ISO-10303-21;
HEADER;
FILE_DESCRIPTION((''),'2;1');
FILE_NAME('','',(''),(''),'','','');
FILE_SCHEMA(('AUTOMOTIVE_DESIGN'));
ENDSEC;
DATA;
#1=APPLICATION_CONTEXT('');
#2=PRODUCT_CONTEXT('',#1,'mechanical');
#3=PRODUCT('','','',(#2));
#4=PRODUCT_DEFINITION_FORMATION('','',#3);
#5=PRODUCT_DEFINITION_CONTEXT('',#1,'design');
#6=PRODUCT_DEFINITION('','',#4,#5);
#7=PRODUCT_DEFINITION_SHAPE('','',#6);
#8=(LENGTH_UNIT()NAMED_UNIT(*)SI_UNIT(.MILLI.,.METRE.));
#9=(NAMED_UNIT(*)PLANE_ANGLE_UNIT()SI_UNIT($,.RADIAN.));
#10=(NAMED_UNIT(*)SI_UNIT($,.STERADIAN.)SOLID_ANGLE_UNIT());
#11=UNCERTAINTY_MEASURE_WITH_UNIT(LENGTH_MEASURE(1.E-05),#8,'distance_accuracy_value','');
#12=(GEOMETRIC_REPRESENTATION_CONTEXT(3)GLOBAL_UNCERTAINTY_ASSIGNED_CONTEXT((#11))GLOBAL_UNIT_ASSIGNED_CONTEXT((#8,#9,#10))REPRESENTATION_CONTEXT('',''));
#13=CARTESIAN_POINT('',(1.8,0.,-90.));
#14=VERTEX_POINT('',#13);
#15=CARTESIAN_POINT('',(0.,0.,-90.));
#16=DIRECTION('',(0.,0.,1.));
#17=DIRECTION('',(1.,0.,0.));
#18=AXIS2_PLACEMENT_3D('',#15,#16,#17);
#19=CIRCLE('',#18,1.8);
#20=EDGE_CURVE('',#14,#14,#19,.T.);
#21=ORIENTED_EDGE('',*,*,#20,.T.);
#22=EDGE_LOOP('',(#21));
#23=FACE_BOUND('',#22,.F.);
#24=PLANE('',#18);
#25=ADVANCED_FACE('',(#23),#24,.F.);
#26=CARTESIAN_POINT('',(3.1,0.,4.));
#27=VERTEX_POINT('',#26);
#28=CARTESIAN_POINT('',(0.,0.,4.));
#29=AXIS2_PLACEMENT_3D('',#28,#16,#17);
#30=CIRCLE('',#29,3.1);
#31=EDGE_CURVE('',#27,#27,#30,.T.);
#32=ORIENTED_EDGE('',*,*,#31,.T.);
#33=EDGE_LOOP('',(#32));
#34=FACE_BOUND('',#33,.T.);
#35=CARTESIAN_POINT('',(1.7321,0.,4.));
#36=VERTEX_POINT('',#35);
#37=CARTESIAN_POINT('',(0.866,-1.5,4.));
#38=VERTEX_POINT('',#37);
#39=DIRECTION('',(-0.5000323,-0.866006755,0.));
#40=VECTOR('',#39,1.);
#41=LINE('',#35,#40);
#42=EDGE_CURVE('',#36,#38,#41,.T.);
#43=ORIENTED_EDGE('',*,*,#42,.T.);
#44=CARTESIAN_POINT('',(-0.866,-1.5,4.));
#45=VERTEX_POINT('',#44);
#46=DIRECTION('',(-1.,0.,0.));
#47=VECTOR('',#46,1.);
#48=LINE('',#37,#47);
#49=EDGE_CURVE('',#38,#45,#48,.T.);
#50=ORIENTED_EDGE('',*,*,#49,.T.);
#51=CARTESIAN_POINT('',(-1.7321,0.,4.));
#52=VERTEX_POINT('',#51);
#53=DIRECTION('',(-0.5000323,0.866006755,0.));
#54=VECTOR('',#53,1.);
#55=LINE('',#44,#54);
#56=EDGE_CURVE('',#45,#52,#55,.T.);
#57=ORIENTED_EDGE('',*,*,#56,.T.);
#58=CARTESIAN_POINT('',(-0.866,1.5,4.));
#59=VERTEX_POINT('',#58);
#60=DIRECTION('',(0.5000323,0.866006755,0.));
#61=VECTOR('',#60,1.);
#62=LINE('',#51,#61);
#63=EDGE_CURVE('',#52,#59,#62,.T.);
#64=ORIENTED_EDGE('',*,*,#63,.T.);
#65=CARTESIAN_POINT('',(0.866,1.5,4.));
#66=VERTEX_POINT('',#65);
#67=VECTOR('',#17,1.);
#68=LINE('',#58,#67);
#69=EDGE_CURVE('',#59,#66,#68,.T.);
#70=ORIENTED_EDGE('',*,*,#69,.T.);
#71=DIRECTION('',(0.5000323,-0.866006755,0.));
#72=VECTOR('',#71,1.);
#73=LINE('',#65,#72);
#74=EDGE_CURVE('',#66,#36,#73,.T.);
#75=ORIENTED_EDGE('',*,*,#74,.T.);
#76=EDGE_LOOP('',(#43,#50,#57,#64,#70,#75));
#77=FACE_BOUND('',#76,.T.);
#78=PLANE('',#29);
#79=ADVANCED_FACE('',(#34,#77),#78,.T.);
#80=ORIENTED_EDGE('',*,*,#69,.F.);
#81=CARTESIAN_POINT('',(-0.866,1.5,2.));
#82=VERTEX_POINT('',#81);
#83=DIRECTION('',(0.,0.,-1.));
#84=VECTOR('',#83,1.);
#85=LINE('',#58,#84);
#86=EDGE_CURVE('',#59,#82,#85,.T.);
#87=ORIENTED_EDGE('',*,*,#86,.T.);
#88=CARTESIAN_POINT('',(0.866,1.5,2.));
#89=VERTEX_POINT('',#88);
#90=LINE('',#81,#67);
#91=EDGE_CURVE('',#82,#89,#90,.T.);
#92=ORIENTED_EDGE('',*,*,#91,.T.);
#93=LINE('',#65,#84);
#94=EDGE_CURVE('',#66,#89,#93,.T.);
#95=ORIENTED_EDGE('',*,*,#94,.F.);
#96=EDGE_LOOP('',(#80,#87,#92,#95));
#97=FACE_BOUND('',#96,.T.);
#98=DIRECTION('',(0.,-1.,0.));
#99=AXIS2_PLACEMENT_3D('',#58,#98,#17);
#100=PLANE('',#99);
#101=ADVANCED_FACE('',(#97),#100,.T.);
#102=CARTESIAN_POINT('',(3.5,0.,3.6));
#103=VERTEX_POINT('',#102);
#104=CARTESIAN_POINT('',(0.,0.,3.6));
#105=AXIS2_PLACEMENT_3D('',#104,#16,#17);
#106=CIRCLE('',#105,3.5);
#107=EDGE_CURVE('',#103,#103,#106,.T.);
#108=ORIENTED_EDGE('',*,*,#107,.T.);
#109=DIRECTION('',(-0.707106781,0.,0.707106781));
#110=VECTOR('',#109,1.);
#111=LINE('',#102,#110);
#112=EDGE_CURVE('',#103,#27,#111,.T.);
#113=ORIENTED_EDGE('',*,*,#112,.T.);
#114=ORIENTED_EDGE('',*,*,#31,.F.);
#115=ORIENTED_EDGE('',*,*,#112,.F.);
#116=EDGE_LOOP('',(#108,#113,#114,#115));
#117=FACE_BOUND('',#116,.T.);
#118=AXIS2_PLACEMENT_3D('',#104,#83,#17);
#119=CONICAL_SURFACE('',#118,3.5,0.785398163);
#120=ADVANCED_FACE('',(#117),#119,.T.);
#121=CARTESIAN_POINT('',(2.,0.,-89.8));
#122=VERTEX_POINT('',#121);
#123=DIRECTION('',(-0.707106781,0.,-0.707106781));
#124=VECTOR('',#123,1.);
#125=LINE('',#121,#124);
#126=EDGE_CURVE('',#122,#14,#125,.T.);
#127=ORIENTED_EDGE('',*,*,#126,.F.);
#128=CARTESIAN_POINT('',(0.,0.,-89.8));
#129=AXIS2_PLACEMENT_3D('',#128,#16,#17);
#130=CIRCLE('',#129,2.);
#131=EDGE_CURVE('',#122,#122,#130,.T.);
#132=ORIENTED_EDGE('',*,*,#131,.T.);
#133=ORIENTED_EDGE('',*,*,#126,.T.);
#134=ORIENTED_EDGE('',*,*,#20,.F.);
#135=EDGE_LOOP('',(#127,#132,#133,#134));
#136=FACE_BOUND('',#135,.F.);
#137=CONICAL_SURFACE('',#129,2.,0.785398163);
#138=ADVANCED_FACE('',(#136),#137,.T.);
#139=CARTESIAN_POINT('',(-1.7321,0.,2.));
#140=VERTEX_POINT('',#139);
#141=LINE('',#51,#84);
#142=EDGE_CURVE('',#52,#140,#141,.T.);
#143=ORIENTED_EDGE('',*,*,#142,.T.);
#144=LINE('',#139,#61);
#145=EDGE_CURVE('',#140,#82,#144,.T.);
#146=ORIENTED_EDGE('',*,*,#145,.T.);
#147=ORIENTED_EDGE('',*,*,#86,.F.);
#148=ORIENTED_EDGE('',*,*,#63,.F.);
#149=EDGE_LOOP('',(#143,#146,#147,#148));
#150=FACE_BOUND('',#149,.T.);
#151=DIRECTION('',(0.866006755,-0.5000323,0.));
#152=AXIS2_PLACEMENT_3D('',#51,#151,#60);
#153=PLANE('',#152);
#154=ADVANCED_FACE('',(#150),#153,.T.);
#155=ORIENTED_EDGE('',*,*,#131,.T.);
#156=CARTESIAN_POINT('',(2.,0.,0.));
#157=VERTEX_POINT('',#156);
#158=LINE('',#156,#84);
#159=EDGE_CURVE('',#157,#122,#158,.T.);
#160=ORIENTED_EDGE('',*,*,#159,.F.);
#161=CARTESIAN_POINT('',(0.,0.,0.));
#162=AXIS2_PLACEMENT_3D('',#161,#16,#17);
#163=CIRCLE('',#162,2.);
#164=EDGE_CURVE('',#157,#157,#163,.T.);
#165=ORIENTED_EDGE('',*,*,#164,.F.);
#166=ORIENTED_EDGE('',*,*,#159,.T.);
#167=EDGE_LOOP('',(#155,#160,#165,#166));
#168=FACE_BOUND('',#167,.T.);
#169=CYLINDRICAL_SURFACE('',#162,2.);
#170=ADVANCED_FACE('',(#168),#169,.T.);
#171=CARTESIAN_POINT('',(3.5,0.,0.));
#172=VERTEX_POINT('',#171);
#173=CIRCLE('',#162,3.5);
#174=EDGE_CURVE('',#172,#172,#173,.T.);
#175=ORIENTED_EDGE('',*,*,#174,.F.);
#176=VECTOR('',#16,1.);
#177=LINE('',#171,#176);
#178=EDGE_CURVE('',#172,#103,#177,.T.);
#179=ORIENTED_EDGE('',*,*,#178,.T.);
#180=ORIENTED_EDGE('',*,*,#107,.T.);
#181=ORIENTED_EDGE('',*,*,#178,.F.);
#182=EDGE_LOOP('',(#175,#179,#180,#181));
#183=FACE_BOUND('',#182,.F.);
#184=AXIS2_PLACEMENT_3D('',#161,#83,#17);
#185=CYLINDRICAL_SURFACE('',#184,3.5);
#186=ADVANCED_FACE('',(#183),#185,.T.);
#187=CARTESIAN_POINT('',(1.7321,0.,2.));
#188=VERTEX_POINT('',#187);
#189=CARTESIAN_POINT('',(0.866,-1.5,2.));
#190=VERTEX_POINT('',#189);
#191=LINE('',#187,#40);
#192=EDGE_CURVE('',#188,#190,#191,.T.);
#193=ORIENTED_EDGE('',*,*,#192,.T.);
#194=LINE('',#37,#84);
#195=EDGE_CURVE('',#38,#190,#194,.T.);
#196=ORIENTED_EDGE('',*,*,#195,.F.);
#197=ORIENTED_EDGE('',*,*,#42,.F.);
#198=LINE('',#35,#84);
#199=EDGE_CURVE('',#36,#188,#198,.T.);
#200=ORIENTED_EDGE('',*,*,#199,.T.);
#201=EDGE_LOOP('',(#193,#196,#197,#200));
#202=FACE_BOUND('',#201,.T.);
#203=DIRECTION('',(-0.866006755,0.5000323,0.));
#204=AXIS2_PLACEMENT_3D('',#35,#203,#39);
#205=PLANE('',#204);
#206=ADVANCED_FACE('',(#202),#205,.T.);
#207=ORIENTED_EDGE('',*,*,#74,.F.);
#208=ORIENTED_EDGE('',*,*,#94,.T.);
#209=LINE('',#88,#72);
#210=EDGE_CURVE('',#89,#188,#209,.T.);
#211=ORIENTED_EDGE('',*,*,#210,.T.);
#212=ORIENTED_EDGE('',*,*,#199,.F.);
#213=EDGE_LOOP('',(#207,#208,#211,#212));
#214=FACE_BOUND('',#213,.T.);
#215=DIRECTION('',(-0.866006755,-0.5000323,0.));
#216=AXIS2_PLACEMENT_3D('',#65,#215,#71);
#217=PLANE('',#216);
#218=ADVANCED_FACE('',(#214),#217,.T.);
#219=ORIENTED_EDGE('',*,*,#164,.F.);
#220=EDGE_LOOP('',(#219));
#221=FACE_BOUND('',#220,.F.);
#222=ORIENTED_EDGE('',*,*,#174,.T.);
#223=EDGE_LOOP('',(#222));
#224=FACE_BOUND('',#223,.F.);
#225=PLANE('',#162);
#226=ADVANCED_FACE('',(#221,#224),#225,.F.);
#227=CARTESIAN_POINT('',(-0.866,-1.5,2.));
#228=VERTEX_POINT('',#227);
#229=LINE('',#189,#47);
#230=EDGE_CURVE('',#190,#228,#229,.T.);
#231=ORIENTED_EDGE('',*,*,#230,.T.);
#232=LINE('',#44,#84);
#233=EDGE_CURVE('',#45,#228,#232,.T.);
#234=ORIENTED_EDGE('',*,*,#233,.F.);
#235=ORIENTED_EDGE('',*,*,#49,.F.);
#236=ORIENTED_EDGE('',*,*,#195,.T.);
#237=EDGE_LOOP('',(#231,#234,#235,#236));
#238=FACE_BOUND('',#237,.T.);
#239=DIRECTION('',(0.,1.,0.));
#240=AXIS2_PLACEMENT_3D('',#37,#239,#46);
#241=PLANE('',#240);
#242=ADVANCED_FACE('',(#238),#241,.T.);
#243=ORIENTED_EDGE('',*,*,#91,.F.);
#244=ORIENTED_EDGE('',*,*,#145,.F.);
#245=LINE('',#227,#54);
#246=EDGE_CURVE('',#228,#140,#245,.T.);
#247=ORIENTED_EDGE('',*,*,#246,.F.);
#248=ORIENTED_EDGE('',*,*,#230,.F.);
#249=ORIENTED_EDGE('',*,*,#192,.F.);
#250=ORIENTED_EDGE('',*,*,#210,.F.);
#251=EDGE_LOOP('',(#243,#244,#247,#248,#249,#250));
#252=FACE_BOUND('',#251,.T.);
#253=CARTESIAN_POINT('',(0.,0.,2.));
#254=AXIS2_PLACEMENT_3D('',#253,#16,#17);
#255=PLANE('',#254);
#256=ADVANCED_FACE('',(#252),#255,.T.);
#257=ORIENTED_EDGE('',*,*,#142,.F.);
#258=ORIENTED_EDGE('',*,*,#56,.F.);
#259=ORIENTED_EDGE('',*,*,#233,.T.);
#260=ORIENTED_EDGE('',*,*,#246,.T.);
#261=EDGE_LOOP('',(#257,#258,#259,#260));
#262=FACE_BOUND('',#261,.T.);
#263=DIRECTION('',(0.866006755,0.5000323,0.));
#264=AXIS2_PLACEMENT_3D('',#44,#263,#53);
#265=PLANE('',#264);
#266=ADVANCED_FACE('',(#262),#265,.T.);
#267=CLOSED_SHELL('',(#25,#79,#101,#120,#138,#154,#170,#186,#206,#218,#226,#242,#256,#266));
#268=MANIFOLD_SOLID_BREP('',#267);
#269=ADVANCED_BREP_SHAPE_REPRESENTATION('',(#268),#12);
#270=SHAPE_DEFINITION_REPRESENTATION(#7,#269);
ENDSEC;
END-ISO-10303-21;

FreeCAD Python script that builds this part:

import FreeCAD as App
import Part
import Sketcher

V = App.Vector


def edges_at(feature, points):
    """Names of the edges that pass closest to the given points."""
    edges = feature.Shape.Edges
    near = lambda p: min(range(len(edges)), key=lambda i: edges[i].distToShape(Part.Vertex(*p))[0])
    return sorted({f"Edge{near(p) + 1}" for p in points})


def add_polygon(sketch, points):
    """Adds a closed chain of lines whose ends are joined by coincident constraints."""
    first, n = sketch.GeometryCount, len(points)
    for a, b in zip(points, points[1:] + points[:1]):
        sketch.addGeometry(Part.LineSegment(App.Vector(*a, 0), App.Vector(*b, 0)), False)
    for i in range(n):
        sketch.addConstraint(Sketcher.Constraint("Coincident", first + i, 2, first + (i + 1) % n, 1))

doc = App.newDocument("Part")
body = doc.addObject("PartDesign::Body", "Body")

# Sketch on XY plane
sketch1 = body.newObject("Sketcher::SketchObject", "Sketch")
sketch1.AttachmentSupport = (doc.getObject("XY_Plane"), [""])
sketch1.MapMode = "FlatFace"
sketch1.addGeometry(Part.Circle(V(0, 0, 0), V(0, 0, 1), 2), False)
sketch1.addConstraint(Sketcher.Constraint("Coincident", 0, 3, -1, 1))
sketch1.addConstraint(Sketcher.Constraint("Diameter", 0, 4.0))
pad1 = body.newObject("PartDesign::Pad", "Pad")
pad1.Profile = sketch1
pad1.Length = 90
pad1.Reversed = True

# Sketch on XY plane
sketch2 = body.newObject("Sketcher::SketchObject", "Sketch001")
sketch2.AttachmentSupport = (doc.getObject("XY_Plane"), [""])
sketch2.MapMode = "FlatFace"
sketch2.addGeometry(Part.Circle(V(0, 0, 0), V(0, 0, 1), 3.5), False)
sketch2.addConstraint(Sketcher.Constraint("Coincident", 0, 3, -1, 1))
sketch2.addConstraint(Sketcher.Constraint("Diameter", 0, 7.0))
pad2 = body.newObject("PartDesign::Pad", "Pad001")
pad2.Profile = sketch2
pad2.Length = 4

# Sketch on XY plane
sketch3 = body.newObject("Sketcher::SketchObject", "Sketch002")
sketch3.AttachmentSupport = (doc.getObject("XY_Plane"), [""])
sketch3.MapMode = "FlatFace"
sketch3.AttachmentOffset = App.Placement(V(0, 0, 4), App.Rotation())
add_polygon(sketch3, [(0.866, -1.5), (1.7321, 0), (0.866, 1.5), (-0.866, 1.5), (-1.7321, 0), (-0.866, -1.5)])  # lines 0-5
sketch3.addConstraint(Sketcher.Constraint("Horizontal", 2))
sketch3.addConstraint(Sketcher.Constraint("Horizontal", 5))
sketch3.addConstraint(Sketcher.Constraint("Symmetric", 0, 2, 3, 2, -1, 1))
sketch3.addConstraint(Sketcher.Constraint("Symmetric", 1, 2, 4, 2, -1, 1))
sketch3.addConstraint(Sketcher.Constraint("PointOnObject", 0, 2, -1))
sketch3.addConstraint(Sketcher.Constraint("Parallel", 0, 3))
sketch3.addConstraint(Sketcher.Constraint("Vertical", 2, 2, 4, 2))
sketch3.addConstraint(Sketcher.Constraint("DistanceY", 4, 2, 2, 2, 3.0))
sketch3.addConstraint(Sketcher.Constraint("DistanceX", 2, 2, 2, 1, 1.732))
sketch3.addConstraint(Sketcher.Constraint("Distance", 0, 1.732))
pocket1 = body.newObject("PartDesign::Pocket", "Pocket")
pocket1.Profile = sketch3
pocket1.Length = 2
doc.recompute()

chamfer = body.newObject("PartDesign::Chamfer", "Chamfer")
chamfer.Base = (pocket1, edges_at(pocket1, [(-3.5, 0, 4)]))
chamfer.Size = 0.4
doc.recompute()

chamfer2 = body.newObject("PartDesign::Chamfer", "Chamfer001")
chamfer2.Base = (chamfer, edges_at(chamfer, [(-2, 0, -90)]))
chamfer2.Size = 0.2

doc.recompute()
